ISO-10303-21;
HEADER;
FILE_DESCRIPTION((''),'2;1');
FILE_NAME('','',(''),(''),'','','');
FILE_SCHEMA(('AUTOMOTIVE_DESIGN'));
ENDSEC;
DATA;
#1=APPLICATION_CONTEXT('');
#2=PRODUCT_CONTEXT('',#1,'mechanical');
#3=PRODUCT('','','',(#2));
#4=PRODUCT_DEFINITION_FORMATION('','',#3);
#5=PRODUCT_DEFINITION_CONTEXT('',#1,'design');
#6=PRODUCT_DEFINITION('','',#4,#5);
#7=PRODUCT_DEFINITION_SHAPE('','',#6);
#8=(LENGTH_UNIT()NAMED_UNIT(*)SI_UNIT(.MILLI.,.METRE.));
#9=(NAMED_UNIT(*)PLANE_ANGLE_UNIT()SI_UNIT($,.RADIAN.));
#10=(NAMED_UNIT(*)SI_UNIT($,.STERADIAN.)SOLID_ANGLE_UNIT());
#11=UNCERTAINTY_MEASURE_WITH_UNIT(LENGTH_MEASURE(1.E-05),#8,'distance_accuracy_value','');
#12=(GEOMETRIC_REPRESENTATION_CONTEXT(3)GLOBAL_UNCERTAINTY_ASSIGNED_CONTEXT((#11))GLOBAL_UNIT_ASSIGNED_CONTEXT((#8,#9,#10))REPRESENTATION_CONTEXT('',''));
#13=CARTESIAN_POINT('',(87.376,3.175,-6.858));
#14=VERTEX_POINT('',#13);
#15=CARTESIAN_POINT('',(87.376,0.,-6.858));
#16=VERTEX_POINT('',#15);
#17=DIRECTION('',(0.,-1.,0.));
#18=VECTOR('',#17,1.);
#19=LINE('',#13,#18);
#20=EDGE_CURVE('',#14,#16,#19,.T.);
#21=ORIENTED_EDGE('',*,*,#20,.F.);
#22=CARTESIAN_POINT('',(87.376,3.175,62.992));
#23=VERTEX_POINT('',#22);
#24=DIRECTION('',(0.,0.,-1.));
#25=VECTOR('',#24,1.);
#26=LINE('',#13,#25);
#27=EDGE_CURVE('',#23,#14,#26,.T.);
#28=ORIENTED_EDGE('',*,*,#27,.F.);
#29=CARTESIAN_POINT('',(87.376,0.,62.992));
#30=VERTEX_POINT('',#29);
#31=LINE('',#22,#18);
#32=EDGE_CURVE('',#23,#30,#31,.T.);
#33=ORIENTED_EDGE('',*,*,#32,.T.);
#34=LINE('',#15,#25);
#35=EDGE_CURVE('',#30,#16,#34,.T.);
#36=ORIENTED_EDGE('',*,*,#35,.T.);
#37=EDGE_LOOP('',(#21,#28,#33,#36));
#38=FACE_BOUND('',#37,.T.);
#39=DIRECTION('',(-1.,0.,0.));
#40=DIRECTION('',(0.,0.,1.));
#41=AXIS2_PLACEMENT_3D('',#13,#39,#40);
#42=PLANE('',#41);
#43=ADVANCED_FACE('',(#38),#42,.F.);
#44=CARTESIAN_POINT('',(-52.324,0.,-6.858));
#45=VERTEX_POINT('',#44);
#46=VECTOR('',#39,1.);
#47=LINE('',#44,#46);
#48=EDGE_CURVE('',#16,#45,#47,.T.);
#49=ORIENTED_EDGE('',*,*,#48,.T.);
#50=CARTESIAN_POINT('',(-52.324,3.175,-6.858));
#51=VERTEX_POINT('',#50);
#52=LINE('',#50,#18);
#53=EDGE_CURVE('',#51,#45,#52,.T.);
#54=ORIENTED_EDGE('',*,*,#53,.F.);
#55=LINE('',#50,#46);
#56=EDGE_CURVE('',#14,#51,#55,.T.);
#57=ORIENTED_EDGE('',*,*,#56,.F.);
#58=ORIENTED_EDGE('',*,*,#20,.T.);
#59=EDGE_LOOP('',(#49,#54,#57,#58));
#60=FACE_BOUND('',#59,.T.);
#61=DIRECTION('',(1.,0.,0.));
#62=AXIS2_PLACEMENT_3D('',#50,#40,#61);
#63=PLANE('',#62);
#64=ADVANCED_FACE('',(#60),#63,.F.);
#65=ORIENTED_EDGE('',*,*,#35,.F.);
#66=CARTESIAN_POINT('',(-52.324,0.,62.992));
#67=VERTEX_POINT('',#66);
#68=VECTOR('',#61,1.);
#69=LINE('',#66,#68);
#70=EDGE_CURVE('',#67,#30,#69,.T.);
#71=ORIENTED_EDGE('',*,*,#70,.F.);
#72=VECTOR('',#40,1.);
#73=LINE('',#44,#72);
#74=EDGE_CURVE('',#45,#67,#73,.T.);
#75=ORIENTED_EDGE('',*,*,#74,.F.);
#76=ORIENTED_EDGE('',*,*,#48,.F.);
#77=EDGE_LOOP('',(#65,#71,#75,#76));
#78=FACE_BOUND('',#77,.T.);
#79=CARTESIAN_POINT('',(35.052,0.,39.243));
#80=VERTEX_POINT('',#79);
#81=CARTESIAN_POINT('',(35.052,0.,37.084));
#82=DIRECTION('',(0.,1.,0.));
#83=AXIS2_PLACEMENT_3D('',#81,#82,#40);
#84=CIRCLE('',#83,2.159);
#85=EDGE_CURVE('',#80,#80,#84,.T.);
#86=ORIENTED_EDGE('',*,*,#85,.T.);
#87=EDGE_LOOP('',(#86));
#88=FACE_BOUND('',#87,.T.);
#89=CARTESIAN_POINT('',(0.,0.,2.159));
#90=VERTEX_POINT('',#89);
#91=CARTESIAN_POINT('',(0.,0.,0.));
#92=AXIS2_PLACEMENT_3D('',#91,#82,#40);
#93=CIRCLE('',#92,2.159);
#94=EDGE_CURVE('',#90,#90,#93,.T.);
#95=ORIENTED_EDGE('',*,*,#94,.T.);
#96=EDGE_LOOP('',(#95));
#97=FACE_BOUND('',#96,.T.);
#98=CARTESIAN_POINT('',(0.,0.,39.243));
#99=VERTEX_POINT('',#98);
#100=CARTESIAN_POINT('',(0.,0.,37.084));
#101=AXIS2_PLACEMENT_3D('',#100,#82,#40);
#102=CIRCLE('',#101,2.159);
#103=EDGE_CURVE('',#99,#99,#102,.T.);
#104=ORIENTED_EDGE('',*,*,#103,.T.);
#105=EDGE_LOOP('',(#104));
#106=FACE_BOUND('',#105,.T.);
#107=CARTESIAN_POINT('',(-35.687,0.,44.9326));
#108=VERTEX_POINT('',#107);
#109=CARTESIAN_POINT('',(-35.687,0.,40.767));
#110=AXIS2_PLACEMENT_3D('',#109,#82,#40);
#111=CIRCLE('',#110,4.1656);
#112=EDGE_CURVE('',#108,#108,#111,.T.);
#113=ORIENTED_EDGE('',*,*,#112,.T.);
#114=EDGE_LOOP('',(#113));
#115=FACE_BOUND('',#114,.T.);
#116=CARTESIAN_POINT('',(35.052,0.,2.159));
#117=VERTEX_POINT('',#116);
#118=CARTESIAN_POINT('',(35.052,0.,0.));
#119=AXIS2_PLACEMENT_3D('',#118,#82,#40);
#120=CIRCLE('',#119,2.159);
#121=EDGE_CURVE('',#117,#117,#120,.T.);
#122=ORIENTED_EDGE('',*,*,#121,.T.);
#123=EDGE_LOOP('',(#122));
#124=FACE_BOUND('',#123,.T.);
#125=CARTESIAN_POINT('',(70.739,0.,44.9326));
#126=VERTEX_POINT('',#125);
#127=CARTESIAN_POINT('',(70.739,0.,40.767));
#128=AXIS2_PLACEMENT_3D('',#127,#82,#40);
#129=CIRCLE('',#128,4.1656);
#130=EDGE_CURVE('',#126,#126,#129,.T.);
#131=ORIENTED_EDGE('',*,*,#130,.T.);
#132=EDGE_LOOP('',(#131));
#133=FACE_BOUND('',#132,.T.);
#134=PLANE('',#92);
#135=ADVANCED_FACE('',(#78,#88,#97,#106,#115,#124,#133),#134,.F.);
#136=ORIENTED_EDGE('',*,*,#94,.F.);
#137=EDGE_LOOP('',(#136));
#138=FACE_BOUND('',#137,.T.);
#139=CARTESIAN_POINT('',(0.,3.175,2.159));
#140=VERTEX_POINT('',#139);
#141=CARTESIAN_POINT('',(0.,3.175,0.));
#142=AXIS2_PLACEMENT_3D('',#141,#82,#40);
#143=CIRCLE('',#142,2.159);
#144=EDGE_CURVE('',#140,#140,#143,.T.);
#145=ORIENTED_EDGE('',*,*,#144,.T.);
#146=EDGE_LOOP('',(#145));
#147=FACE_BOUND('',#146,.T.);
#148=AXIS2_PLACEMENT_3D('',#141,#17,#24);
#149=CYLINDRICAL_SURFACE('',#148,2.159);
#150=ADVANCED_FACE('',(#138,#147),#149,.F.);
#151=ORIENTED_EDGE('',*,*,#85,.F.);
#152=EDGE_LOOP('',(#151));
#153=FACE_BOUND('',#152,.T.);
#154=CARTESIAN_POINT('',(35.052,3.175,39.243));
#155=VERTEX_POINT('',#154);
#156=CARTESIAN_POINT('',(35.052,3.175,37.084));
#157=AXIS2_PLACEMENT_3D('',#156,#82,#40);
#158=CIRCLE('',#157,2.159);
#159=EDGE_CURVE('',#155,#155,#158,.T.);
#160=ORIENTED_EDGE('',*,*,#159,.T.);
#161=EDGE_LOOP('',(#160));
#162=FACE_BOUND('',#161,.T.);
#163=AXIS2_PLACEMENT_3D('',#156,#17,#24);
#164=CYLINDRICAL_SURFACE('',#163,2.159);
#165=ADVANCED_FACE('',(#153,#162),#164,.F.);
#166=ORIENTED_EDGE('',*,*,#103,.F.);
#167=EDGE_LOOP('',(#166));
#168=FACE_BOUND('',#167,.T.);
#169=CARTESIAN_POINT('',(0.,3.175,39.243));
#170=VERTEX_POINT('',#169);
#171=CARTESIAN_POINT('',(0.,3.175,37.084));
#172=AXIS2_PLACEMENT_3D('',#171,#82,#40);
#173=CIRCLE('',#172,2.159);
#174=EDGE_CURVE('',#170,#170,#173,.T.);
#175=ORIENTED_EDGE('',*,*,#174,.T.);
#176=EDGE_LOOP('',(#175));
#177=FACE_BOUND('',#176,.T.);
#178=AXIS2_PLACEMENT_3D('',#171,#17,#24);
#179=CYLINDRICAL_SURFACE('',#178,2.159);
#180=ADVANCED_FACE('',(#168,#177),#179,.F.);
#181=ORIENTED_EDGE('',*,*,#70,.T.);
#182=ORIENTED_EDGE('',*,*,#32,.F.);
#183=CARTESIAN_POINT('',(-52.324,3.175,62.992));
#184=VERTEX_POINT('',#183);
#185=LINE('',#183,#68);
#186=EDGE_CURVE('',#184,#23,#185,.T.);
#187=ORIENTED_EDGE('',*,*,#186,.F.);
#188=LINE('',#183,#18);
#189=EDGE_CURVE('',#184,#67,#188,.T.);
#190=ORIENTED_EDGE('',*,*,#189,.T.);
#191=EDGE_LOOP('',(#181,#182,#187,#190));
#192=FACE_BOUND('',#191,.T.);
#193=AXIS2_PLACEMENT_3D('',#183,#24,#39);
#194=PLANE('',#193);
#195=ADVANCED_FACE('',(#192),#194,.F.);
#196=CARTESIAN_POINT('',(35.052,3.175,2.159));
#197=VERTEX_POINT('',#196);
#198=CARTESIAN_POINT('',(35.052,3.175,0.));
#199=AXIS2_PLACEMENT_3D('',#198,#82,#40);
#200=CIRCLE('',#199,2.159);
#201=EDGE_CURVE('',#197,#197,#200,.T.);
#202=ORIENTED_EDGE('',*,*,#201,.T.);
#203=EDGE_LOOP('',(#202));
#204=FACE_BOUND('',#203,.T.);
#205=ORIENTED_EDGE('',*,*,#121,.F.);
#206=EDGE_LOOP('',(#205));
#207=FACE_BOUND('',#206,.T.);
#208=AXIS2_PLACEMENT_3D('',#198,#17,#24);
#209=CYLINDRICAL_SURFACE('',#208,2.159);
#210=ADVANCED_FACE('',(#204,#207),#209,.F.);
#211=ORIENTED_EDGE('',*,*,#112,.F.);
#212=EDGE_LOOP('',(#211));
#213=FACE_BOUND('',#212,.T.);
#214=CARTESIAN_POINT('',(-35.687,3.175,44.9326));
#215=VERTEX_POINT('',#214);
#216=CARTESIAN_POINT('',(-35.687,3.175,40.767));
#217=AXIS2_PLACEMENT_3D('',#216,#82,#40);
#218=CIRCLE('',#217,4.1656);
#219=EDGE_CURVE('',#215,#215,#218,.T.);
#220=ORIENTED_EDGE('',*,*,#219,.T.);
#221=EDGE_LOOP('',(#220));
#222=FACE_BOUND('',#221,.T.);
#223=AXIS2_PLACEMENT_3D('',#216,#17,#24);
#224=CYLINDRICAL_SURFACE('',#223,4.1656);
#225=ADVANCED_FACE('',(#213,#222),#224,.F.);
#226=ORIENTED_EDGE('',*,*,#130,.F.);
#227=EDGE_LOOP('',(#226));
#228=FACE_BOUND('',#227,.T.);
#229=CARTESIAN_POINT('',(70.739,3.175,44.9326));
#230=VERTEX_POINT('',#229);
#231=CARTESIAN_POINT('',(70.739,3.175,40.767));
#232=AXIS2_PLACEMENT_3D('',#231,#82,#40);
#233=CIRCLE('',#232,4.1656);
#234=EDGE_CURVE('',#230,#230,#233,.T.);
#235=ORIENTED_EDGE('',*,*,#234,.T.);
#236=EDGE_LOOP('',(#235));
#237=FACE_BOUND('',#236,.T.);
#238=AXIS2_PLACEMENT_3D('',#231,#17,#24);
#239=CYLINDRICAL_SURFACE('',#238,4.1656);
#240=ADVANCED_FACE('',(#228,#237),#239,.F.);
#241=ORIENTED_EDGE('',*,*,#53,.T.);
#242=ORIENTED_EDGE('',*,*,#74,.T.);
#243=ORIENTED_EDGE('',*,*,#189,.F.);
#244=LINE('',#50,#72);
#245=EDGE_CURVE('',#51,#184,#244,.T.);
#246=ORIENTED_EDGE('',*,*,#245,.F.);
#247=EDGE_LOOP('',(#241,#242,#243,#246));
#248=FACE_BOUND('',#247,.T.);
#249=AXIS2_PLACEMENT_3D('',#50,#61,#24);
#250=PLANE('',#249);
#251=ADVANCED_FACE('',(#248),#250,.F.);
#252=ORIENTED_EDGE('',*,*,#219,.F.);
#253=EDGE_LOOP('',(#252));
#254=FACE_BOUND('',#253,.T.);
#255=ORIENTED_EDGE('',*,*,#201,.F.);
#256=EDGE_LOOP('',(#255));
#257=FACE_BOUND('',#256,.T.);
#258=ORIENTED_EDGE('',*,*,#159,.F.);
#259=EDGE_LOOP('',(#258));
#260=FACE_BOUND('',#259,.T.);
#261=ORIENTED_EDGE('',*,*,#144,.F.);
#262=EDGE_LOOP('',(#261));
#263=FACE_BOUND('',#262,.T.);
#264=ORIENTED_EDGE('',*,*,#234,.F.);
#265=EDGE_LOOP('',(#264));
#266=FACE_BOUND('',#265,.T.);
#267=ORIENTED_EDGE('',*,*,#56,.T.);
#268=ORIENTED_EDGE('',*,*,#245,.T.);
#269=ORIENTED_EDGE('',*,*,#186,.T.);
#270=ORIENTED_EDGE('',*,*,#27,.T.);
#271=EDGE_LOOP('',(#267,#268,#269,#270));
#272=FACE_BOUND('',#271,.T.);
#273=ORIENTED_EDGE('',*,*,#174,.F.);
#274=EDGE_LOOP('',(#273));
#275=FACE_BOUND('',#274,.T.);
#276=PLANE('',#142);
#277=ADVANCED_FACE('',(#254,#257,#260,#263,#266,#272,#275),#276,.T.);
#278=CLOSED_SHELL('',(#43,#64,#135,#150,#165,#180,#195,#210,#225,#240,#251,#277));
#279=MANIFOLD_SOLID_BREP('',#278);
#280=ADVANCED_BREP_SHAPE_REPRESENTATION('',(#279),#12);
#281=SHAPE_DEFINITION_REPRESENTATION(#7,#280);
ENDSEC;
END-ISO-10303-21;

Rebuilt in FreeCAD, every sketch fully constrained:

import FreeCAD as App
import Part
import Sketcher
Q = App.Units.Quantity

doc = App.newDocument("Part")
body = doc.addObject("PartDesign::Body", "Body")

sketch1 = body.newObject("Sketcher::SketchObject", "Sketch")
sketch1.AttachmentSupport = (doc.getObject("XZ_Plane"), [""])
sketch1.MapMode = "FlatFace"
sketch1.addGeometry([
    Part.LineSegment(App.Vector(-52.324, -6.858, 0), App.Vector(-52.324, 62.992, 0)),
    Part.LineSegment(App.Vector(-52.324, 62.992, 0), App.Vector(87.376, 62.992, 0)),
    Part.LineSegment(App.Vector(87.376, 62.992, 0), App.Vector(87.376, -6.858, 0)),
    Part.LineSegment(App.Vector(87.376, -6.858, 0), App.Vector(-52.324, -6.858, 0)),
    Part.Circle(App.Vector(-35.687, 40.767, 0), App.Vector(0, 0, 1), 4.1656),
    Part.Circle(App.Vector(0, 37.084, 0), App.Vector(0, 0, 1), 2.159),
    Part.Circle(App.Vector(35.052, 37.084, 0), App.Vector(0, 0, 1), 2.159),
    Part.Circle(App.Vector(70.739, 40.767, 0), App.Vector(0, 0, 1), 4.1656),
    Part.Circle(App.Vector(0, 0, 0), App.Vector(0, 0, 1), 2.159),
    Part.Circle(App.Vector(35.052, 0, 0), App.Vector(0, 0, 1), 2.159),
], False)
sketch1.addConstraint([
    Sketcher.Constraint("Coincident", 0, 2, 1, 1),
    Sketcher.Constraint("Coincident", 1, 2, 2, 1),
    Sketcher.Constraint("Coincident", 2, 2, 3, 1),
    Sketcher.Constraint("Coincident", 3, 2, 0, 1),
    Sketcher.Constraint("Vertical", 0),
    Sketcher.Constraint("Horizontal", 1),
    Sketcher.Constraint("Vertical", 2),
    Sketcher.Constraint("Horizontal", 3),
    Sketcher.Constraint("Coincident", 8, 3, -1, 1),
    Sketcher.Constraint("Equal", 5, 6),
    Sketcher.Constraint("Equal", 4, 7),
    Sketcher.Constraint("Equal", 6, 8),
    Sketcher.Constraint("Equal", 8, 9),
    Sketcher.Constraint("PointOnObject", 5, 3, -2),
    Sketcher.Constraint("PointOnObject", 9, 3, -1),
    Sketcher.Constraint("Horizontal", 5, 3, 6, 3),
    Sketcher.Constraint("Horizontal", 4, 3, 7, 3),
    Sketcher.Constraint("Vertical", 6, 3, 9, 3),
    Sketcher.Constraint("Diameter", 5, Q("0.17 in")),
    Sketcher.Constraint("Diameter", 4, Q("0.328 in")),
    Sketcher.Constraint("DistanceX", 1, 1, 1, 2, Q("5.5 in")),
    Sketcher.Constraint("DistanceY", 0, 1, 0, 2, Q("2.75 in")),
    Sketcher.Constraint("DistanceY", -1, 1, 5, 3, Q("1.46 in")),
    Sketcher.Constraint("DistanceX", -1, 1, 6, 3, Q("1.38 in")),
    Sketcher.Constraint("DistanceX", 0, 2, -1, 1, Q("2.06 in")),
    Sketcher.Constraint("DistanceY", -1, 1, 0, 2, Q("2.48 in")),
    Sketcher.Constraint("DistanceX", 4, 3, 7, 3, Q("4.19 in")),
    Sketcher.Constraint("DistanceX", 4, 3, -1, 1, Q("1.405 in")),
    Sketcher.Constraint("DistanceY", -1, 1, 4, 3, Q("1.605 in")),
])
pad1 = body.newObject("PartDesign::Pad", "Pad")
pad1.Profile = sketch1
pad1.Length = Q("0.125 in")
pad1.Reversed = True

doc.recompute()
